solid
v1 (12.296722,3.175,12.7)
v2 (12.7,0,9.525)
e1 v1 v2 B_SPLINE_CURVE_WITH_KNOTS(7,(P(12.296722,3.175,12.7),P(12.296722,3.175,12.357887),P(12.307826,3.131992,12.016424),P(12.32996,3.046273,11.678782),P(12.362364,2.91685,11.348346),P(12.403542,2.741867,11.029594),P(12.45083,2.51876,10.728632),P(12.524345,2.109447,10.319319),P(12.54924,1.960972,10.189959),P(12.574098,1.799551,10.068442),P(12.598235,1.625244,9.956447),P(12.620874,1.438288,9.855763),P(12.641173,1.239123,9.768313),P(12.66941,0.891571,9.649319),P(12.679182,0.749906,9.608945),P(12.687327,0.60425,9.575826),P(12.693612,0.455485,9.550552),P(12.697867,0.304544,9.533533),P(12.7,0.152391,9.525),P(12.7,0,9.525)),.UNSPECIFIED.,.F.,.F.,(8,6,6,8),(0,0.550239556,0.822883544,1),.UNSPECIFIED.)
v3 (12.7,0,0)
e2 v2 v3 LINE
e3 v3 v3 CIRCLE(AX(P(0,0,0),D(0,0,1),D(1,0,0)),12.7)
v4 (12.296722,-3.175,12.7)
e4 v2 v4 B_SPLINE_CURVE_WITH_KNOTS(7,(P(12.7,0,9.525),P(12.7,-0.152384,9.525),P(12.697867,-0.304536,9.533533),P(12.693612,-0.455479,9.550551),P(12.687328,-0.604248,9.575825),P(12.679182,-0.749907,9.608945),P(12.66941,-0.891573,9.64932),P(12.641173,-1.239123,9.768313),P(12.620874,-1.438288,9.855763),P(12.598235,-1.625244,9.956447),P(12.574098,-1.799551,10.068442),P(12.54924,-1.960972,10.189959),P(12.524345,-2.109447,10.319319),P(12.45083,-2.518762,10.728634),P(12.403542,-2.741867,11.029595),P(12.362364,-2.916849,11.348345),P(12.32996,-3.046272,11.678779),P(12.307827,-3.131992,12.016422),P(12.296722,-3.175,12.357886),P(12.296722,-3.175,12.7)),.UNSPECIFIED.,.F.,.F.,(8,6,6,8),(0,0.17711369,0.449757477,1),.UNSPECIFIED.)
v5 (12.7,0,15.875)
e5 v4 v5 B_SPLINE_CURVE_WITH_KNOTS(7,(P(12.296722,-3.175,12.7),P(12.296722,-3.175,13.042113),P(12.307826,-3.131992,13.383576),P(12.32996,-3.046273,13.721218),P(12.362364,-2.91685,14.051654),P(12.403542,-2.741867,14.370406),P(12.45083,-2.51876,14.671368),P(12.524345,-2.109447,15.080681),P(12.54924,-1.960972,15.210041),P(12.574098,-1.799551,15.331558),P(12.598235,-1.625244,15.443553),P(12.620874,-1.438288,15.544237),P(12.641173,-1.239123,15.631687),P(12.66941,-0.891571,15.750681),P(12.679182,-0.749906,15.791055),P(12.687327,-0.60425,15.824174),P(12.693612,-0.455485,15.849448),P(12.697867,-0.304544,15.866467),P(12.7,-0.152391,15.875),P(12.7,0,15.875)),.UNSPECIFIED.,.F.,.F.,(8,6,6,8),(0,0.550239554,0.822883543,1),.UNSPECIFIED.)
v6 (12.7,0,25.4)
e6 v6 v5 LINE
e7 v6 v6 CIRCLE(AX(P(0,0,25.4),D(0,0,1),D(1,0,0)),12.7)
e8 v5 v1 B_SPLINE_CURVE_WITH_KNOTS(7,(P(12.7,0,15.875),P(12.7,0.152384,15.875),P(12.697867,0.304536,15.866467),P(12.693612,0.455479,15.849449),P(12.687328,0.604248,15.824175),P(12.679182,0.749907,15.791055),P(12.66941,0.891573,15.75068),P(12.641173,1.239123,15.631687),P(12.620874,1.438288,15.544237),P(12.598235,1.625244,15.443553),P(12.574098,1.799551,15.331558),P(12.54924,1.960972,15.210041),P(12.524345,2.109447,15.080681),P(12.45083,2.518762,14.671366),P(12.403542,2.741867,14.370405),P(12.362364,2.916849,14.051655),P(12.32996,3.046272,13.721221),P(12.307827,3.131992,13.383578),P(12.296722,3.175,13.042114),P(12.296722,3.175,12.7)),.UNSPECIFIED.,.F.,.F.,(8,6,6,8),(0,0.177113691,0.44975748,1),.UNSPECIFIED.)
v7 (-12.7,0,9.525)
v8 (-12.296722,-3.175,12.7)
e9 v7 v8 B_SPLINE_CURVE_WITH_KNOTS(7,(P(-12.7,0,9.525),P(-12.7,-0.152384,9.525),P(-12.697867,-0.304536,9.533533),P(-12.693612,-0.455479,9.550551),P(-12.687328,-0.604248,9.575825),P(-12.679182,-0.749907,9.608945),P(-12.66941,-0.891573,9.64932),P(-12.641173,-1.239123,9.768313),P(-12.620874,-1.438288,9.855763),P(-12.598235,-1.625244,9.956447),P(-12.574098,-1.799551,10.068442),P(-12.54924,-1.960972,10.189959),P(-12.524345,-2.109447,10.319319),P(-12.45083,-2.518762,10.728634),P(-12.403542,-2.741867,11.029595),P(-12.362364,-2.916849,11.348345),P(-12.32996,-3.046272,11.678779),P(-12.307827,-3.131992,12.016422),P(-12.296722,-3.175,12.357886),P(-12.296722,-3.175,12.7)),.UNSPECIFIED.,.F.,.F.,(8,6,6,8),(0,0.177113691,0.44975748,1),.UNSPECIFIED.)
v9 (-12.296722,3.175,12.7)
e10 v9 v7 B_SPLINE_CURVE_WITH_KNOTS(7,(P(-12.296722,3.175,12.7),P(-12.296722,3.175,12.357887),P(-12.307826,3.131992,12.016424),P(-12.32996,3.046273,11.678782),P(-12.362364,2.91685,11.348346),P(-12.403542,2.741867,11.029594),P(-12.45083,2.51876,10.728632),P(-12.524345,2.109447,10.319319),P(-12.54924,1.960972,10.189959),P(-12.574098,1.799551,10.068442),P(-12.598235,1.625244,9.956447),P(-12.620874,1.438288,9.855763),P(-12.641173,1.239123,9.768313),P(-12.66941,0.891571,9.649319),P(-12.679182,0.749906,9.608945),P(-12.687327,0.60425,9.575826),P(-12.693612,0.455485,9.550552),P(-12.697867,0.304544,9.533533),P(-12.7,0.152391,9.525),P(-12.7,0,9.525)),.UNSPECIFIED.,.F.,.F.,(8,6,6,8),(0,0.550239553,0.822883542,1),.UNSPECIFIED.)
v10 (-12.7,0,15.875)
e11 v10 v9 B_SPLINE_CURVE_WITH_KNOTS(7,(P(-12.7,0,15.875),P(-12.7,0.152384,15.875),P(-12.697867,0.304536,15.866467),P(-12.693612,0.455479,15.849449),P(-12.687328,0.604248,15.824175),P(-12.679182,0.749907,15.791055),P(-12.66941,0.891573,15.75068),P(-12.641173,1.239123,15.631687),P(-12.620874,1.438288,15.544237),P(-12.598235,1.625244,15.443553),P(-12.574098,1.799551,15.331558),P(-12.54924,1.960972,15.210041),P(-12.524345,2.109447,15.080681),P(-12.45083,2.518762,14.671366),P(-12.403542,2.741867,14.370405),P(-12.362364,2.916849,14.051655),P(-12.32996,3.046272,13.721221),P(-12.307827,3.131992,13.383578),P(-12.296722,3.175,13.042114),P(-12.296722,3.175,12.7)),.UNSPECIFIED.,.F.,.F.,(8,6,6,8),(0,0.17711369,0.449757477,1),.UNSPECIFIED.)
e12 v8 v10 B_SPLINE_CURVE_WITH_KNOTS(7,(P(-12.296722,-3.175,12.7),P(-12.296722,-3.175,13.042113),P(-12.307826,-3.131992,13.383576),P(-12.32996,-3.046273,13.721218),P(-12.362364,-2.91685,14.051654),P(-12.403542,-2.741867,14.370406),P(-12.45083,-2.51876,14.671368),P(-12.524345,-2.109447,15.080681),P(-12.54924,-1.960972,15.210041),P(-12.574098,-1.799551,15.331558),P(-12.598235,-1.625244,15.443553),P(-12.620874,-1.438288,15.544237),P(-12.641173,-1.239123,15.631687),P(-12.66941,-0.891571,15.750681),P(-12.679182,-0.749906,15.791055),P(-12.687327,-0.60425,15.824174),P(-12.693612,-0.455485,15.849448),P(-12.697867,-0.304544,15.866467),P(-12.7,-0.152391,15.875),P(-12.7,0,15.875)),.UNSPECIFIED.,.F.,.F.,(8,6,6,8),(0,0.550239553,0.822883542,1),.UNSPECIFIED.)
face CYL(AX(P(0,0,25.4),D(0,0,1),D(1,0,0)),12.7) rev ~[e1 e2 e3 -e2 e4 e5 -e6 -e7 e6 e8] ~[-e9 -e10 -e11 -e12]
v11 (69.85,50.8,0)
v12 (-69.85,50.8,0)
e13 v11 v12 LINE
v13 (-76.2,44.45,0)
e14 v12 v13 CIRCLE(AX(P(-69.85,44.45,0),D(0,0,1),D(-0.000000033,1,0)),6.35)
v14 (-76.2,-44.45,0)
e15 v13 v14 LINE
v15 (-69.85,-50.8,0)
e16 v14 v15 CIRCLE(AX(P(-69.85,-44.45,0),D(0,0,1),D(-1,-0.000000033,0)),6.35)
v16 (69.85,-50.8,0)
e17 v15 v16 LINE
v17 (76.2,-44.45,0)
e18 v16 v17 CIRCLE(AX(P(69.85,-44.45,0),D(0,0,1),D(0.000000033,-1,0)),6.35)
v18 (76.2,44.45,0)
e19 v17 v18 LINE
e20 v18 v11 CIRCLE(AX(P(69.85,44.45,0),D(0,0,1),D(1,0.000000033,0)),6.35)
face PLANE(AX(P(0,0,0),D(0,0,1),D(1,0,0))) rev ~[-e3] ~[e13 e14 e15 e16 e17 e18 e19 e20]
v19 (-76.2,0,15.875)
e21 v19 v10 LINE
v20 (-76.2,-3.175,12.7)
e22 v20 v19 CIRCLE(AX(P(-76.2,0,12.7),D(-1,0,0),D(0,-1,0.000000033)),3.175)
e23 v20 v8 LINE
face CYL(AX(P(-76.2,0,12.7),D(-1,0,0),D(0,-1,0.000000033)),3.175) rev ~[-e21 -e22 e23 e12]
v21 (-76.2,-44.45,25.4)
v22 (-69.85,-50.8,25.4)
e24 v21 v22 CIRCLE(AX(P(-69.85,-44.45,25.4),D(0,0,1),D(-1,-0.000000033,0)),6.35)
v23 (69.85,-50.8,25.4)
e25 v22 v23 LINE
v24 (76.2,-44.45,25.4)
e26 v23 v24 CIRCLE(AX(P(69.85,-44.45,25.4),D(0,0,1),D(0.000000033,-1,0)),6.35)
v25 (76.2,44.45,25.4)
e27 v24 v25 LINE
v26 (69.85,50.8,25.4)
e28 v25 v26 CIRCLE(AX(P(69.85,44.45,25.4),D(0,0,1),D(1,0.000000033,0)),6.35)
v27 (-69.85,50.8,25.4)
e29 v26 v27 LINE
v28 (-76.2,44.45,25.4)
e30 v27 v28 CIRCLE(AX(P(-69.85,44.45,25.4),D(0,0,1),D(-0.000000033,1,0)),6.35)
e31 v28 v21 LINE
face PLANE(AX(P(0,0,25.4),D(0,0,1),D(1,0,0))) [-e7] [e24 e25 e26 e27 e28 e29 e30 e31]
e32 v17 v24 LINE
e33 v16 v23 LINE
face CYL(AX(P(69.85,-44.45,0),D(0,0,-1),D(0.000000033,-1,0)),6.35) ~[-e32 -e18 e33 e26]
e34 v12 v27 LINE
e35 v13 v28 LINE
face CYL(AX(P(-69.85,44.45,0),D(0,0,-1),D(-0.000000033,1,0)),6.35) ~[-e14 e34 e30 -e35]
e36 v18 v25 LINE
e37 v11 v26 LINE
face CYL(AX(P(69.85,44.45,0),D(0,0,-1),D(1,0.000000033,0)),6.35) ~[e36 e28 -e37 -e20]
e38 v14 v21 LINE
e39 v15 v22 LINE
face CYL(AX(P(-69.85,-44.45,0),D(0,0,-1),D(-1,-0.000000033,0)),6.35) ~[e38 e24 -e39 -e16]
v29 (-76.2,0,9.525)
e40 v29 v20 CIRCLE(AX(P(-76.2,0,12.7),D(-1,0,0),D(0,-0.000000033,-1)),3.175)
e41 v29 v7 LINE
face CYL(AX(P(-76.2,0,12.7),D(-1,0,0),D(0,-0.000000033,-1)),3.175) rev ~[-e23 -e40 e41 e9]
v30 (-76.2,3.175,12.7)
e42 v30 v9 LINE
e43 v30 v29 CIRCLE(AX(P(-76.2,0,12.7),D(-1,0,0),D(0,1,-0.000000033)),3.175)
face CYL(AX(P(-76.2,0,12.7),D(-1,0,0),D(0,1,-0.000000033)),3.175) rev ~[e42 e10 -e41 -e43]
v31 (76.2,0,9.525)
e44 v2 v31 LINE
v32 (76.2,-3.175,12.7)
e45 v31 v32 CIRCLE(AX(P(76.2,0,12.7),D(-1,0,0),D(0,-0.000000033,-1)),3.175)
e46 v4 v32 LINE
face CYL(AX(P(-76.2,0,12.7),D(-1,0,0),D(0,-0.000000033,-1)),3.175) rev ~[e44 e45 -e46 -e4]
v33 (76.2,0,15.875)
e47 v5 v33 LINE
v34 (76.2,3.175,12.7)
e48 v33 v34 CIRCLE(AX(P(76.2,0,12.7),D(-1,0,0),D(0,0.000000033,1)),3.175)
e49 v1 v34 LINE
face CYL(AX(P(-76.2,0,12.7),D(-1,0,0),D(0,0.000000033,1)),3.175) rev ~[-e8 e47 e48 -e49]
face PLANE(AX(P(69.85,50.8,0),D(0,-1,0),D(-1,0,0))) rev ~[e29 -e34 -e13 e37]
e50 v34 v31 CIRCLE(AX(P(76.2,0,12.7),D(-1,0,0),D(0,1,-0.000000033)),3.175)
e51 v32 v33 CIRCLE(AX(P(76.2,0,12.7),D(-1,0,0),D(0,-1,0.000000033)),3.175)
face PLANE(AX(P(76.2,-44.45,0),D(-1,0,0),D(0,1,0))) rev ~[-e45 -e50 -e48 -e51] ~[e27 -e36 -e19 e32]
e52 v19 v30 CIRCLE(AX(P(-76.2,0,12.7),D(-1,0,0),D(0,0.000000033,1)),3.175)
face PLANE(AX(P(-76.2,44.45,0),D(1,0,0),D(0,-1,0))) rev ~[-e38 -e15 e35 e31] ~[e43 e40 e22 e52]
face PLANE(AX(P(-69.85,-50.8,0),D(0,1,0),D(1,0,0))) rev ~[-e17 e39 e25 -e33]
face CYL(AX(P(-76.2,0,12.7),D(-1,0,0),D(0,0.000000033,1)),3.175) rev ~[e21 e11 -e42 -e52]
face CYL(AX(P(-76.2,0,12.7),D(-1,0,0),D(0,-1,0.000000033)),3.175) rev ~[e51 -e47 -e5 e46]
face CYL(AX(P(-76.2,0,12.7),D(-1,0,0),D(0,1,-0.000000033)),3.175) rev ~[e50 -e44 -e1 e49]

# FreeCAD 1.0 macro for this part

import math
import FreeCAD as App
import Part
import Sketcher

V = App.Vector
Q = App.Units.Quantity

doc = App.newDocument("Part")
body = doc.addObject("PartDesign::Body", "Body")

sketch1 = body.newObject("Sketcher::SketchObject", "Sketch")
sketch1.AttachmentSupport = (doc.getObject("XY_Plane"), [""])
sketch1.MapMode = "FlatFace"
sketch1.addGeometry(Part.LineSegment(V(69.85, 50.8, 0), V(-69.85, 50.8, 0)), False)
sketch1.addGeometry(Part.ArcOfCircle(Part.Circle(V(-69.85, 44.45, 0), V(0, 0, 1), 6.35), math.radians(90.000002), math.radians(179.999998)), False)
sketch1.addGeometry(Part.LineSegment(V(-76.2, 44.45, 0), V(-76.2, -44.45, 0)), False)
sketch1.addGeometry(Part.ArcOfCircle(Part.Circle(V(-69.85, -44.45, 0), V(0, 0, 1), 6.35), math.radians(-179.999998), math.radians(-90.000002)), False)
sketch1.addGeometry(Part.LineSegment(V(-69.85, -50.8, 0), V(69.85, -50.8, 0)), False)
sketch1.addGeometry(Part.ArcOfCircle(Part.Circle(V(69.85, -44.45, 0), V(0, 0, 1), 6.35), math.radians(-89.999998), math.radians(-0.000002)), False)
sketch1.addGeometry(Part.LineSegment(V(76.2, -44.45, 0), V(76.2, 44.45, 0)), False)
sketch1.addGeometry(Part.ArcOfCircle(Part.Circle(V(69.85, 44.45, 0), V(0, 0, 1), 6.35), math.radians(0.000002), math.radians(89.999998)), False)
sketch1.addConstraint(Sketcher.Constraint("Tangent", 0, 2, 1, 1))
sketch1.addConstraint(Sketcher.Constraint("Tangent", 1, 2, 2, 1))
sketch1.addConstraint(Sketcher.Constraint("Tangent", 2, 2, 3, 1))
sketch1.addConstraint(Sketcher.Constraint("Tangent", 3, 2, 4, 1))
sketch1.addConstraint(Sketcher.Constraint("Tangent", 4, 2, 5, 1))
sketch1.addConstraint(Sketcher.Constraint("Tangent", 5, 2, 6, 1))
sketch1.addConstraint(Sketcher.Constraint("Tangent", 6, 2, 7, 1))
sketch1.addConstraint(Sketcher.Constraint("Tangent", 7, 2, 0, 1))
sketch1.addConstraint(Sketcher.Constraint("Horizontal", 0))
sketch1.addConstraint(Sketcher.Constraint("Vertical", 2))
sketch1.addConstraint(Sketcher.Constraint("Horizontal", 4))
sketch1.addConstraint(Sketcher.Constraint("Vertical", 6))
sketch1.addConstraint(Sketcher.Constraint("Equal", 1, 3))
sketch1.addConstraint(Sketcher.Constraint("Equal", 3, 5))
sketch1.addConstraint(Sketcher.Constraint("Equal", 5, 7))
sketch1.addConstraint(Sketcher.Constraint("Symmetric", 1, 3, 5, 3, -1, 1))
sketch1.addConstraint(Sketcher.Constraint("Radius", 1, Q("0.25 in")))
sketch1.addConstraint(Sketcher.Constraint("DistanceX", 0, 2, 0, 1, Q("5.5 in")))
sketch1.addConstraint(Sketcher.Constraint("DistanceY", 2, 2, 2, 1, Q("3.5 in")))
pad1 = body.newObject("PartDesign::Pad", "Pad")
pad1.Profile = sketch1
pad1.Length = Q("1 in")

sketch2 = body.newObject("Sketcher::SketchObject", "Sketch001")
sketch2.AttachmentSupport = (doc.getObject("XY_Plane"), [""])
sketch2.MapMode = "FlatFace"
sketch2.AttachmentOffset = App.Placement(V(0, 0, 1 * 25.4), App.Rotation())
sketch2.addGeometry(Part.Circle(V(0, 0, 0), V(0, 0, 1), 12.7), False)
sketch2.addConstraint(Sketcher.Constraint("Coincident", 0, 3, -1, 1))
sketch2.addConstraint(Sketcher.Constraint("Diameter", 0, Q("1 in")))
pocket1 = body.newObject("PartDesign::Pocket", "Pocket")
pocket1.Profile = sketch2
pocket1.Type = "ThroughAll"

sketch3 = body.newObject("Sketcher::SketchObject", "Sketch002")
sketch3.AttachmentSupport = (doc.getObject("YZ_Plane"), [""])
sketch3.MapMode = "FlatFace"
sketch3.AttachmentOffset = App.Placement(V(0, 0, -3 * 25.4), App.Rotation())
sketch3.addGeometry(Part.ArcOfCircle(Part.Circle(V(0, 12.7, 0), V(0, 0, 1), 3.175), math.radians(-89.999998), math.radians(-0.000002)), False)
sketch3.addGeometry(Part.ArcOfCircle(Part.Circle(V(0, 12.7, 0), V(0, 0, 1), 3.175), math.radians(-179.999998), math.radians(-90.000002)), False)
sketch3.addGeometry(Part.ArcOfCircle(Part.Circle(V(0, 12.7, 0), V(0, 0, 1), 3.175), math.radians(90.000002), math.radians(179.999998)), False)
sketch3.addGeometry(Part.ArcOfCircle(Part.Circle(V(0, 12.7, 0), V(0, 0, 1), 3.175), math.radians(0.000002), math.radians(89.999998)), False)
sketch3.addConstraint(Sketcher.Constraint("Tangent", 0, 1, 1, 2))
sketch3.addConstraint(Sketcher.Constraint("Tangent", 1, 1, 2, 2))
sketch3.addConstraint(Sketcher.Constraint("Tangent", 2, 1, 3, 2))
sketch3.addConstraint(Sketcher.Constraint("Tangent", 3, 1, 0, 2))
sketch3.addConstraint(Sketcher.Constraint("Equal", 0, 1))
sketch3.addConstraint(Sketcher.Constraint("Symmetric", 1, 1, 3, 1, -2))
sketch3.addConstraint(Sketcher.Constraint("PointOnObject", 0, 1, -2))
sketch3.addConstraint(Sketcher.Constraint("PointOnObject", 2, 1, -2))
sketch3.addConstraint(Sketcher.Constraint("Horizontal", 3, 3, 1, 1))
sketch3.addConstraint(Sketcher.Constraint("Radius", 0, Q("0.125 in")))
sketch3.addConstraint(Sketcher.Constraint("DistanceY", -1, 1, 0, 3, Q("0.5 in")))
pocket2 = body.newObject("PartDesign::Pocket", "Pocket001")
pocket2.Profile = sketch3
pocket2.Type = "ThroughAll"
pocket2.Reversed = True

doc.recompute()
